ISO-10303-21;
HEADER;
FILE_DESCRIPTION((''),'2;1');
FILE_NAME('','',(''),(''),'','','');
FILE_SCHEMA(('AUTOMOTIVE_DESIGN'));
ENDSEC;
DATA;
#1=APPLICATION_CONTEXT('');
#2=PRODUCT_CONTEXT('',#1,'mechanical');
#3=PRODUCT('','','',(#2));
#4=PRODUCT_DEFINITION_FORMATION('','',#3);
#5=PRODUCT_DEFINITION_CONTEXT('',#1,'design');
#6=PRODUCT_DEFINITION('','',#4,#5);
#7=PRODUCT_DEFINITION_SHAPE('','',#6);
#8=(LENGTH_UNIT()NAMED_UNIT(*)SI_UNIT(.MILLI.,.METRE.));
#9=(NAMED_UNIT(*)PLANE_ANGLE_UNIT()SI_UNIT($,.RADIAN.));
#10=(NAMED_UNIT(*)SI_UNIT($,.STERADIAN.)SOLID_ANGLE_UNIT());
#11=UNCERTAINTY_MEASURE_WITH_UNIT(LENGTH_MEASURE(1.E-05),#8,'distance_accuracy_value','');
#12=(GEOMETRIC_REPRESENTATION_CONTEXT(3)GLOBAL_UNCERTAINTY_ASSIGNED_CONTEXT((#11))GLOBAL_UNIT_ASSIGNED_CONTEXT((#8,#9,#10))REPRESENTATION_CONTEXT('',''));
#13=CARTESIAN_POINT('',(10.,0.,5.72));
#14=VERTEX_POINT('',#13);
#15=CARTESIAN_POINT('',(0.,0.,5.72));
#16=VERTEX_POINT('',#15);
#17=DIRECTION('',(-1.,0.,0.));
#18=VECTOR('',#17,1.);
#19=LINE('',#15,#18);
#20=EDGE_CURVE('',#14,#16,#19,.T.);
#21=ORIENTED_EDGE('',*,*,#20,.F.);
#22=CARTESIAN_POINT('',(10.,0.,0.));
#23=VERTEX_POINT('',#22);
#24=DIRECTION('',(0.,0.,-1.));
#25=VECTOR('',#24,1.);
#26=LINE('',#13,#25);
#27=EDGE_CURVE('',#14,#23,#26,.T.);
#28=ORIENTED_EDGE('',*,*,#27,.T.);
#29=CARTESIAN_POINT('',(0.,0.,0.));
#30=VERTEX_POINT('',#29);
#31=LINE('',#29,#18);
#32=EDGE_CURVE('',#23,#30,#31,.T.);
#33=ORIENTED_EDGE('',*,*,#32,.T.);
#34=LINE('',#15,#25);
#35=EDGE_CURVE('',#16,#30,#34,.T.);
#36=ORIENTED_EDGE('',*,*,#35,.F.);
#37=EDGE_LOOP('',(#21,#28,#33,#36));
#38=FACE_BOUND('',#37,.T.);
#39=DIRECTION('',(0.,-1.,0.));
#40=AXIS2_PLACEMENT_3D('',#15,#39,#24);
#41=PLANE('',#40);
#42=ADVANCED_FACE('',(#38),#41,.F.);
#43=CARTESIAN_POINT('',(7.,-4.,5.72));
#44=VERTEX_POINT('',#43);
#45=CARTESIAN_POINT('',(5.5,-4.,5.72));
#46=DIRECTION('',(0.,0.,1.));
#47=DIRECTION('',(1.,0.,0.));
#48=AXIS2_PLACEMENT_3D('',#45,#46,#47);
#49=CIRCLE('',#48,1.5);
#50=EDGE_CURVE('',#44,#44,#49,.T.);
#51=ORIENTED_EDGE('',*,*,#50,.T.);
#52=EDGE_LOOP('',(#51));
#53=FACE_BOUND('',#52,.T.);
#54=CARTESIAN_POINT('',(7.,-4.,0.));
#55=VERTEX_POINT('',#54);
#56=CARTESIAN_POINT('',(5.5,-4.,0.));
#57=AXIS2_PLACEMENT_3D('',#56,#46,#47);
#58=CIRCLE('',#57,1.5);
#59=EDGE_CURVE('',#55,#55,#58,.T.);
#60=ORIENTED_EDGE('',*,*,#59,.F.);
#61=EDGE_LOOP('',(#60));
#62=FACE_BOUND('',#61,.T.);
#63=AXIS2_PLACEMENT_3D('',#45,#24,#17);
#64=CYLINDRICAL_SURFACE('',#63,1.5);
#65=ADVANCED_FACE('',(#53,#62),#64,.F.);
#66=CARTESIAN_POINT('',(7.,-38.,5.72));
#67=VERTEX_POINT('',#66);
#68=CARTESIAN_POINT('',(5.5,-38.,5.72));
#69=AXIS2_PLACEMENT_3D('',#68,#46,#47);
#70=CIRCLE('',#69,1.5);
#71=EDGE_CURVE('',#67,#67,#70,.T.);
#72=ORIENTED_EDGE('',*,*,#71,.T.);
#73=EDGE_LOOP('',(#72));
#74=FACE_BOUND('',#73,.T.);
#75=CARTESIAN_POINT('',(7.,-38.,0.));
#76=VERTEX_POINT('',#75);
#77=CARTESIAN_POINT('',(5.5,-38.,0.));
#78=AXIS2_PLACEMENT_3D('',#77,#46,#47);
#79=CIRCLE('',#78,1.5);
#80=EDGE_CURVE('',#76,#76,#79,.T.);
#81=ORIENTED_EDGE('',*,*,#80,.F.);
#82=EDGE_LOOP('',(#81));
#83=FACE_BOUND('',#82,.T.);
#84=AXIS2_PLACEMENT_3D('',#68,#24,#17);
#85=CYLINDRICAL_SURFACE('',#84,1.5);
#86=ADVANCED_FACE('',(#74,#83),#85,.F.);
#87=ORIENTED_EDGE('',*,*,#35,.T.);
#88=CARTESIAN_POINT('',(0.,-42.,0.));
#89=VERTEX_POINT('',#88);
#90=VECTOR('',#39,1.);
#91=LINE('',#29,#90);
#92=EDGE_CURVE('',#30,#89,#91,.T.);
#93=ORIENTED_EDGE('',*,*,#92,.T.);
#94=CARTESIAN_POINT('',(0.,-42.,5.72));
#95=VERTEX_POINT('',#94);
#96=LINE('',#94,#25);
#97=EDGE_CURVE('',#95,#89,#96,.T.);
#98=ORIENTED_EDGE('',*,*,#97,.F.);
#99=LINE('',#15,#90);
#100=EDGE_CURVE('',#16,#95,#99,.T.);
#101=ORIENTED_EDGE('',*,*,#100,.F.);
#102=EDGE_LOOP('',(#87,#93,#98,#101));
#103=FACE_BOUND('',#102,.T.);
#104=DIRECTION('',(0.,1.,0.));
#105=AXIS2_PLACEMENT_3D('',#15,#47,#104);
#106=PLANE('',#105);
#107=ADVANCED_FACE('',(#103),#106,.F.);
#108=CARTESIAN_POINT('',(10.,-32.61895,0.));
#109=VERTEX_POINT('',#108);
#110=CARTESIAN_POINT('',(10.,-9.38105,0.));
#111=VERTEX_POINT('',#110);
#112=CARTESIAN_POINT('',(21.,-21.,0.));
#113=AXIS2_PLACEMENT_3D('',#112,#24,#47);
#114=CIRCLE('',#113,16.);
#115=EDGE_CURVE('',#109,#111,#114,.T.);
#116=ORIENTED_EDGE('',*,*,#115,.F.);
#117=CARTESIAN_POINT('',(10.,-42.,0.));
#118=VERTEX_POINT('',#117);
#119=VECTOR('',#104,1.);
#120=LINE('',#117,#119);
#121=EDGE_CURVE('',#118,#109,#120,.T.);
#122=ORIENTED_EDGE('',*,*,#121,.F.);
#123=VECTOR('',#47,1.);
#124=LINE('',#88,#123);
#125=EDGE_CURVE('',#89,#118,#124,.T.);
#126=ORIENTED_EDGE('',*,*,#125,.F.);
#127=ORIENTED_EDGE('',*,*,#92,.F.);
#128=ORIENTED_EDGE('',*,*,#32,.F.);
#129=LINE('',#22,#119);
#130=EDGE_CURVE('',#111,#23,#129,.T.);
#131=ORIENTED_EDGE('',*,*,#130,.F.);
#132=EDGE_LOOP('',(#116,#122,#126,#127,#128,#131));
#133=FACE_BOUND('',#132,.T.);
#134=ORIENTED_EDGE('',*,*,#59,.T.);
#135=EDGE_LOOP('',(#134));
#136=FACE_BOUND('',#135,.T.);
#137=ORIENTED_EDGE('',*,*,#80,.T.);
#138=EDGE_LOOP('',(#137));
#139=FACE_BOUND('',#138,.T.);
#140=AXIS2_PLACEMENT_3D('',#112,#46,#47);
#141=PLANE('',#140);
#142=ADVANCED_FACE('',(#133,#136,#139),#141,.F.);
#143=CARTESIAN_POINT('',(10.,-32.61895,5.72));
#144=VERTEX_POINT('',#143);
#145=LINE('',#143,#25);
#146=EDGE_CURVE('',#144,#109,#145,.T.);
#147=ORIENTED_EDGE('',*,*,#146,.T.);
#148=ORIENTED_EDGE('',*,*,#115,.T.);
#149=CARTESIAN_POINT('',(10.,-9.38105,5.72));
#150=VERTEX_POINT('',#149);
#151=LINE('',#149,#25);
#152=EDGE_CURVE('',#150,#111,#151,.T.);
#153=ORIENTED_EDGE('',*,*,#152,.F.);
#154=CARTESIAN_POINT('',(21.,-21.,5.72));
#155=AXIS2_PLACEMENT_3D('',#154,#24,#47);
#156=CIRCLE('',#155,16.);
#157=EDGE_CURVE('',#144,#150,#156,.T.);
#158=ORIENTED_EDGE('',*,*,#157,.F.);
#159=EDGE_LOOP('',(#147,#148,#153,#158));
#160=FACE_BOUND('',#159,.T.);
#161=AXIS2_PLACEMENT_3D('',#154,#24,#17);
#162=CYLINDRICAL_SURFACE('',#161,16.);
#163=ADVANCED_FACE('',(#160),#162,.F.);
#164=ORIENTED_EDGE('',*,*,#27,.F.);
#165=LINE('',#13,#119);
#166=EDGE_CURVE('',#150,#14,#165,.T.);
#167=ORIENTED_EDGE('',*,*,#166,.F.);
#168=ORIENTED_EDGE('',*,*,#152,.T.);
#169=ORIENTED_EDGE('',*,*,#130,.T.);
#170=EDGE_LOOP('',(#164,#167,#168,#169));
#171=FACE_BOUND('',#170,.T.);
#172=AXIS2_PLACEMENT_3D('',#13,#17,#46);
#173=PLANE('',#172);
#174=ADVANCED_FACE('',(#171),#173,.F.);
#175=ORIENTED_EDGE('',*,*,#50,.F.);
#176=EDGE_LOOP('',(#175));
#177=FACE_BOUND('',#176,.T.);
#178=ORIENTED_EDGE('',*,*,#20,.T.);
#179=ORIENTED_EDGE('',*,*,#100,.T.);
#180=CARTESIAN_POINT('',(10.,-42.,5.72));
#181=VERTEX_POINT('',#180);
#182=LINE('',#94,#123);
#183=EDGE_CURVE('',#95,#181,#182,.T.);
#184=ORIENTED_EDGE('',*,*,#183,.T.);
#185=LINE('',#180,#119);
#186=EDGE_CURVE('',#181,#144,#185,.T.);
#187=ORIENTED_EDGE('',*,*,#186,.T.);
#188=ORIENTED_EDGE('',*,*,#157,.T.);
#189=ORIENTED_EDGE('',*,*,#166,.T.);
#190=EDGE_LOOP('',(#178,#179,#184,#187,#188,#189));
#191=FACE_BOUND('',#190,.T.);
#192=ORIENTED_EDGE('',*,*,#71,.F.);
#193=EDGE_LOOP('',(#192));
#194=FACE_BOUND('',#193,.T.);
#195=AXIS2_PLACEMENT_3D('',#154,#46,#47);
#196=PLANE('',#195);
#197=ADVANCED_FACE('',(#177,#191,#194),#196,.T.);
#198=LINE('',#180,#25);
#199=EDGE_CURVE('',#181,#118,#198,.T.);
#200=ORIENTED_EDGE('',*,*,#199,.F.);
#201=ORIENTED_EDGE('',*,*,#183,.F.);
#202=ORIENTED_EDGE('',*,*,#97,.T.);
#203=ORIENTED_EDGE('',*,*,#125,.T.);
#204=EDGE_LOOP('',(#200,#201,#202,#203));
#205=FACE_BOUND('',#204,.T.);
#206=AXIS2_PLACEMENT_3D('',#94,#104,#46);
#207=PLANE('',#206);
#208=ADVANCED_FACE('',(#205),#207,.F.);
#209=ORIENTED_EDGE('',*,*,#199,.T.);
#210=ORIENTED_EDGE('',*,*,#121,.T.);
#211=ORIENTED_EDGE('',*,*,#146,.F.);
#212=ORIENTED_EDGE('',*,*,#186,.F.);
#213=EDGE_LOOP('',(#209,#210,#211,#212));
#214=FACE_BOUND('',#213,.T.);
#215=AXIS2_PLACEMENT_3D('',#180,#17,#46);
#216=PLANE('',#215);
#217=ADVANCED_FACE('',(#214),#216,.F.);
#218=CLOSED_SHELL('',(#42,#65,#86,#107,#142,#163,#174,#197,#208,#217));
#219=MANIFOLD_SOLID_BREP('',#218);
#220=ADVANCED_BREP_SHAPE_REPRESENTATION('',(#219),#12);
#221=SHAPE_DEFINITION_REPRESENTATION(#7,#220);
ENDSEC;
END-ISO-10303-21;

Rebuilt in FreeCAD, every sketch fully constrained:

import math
import FreeCAD as App
import Part
import Sketcher
Q = App.Units.Quantity

doc = App.newDocument("Part")
params = doc.addObject("Spreadsheet::Sheet", "Params")
for row, (alias, value) in enumerate([
    ("sketch1_diameter", "3 mm"),
    ("sketch1_radius", "16 mm"),
    ("sketch1_width", "10 mm"),
    ("sketch1_height", "42 mm"),
    ("pad1_length", "5.72 mm"),
], start=1):
    params.set(f"A{row}", alias)
    params.set(f"B{row}", "=" + value)
    params.setAlias(f"B{row}", alias)

body = doc.addObject("PartDesign::Body", "Body")

# Sketch on XY plane
sketch1 = doc.addObject("Sketcher::SketchObject", "Sketch")
body.addObject(sketch1)
sketch1.AttachmentSupport = (doc.XY_Plane, [""])
sketch1.MapMode = "FlatFace"
sketch1.addGeometry([
    Part.LineSegment(App.Vector(10, 0, 0), App.Vector(0, 0, 0)),  # 0
    Part.LineSegment(App.Vector(0, 0, 0), App.Vector(0, -42, 0)),  # 1
    Part.LineSegment(App.Vector(0, -42, 0), App.Vector(10, -42, 0)),  # 2
    Part.LineSegment(App.Vector(10, -42, 0), App.Vector(10, -32.61895, 0)),  # 3
    Part.ArcOfCircle(Part.Circle(App.Vector(21, -21, 0), App.Vector(0, 0, 1), 16), math.radians(133.432537), math.radians(226.567463)),  # 4
    Part.LineSegment(App.Vector(10, -9.38105, 0), App.Vector(10, 0, 0)),  # 5
    Part.Circle(App.Vector(5.5, -38, 0), App.Vector(0, 0, 1), 1.5),  # 6
    Part.Circle(App.Vector(5.5, -4, 0), App.Vector(0, 0, 1), 1.5),  # 7
], False)
sketch1.addConstraint([
    Sketcher.Constraint("Coincident", 0, 2, 1, 1),
    Sketcher.Constraint("Coincident", 1, 2, 2, 1),
    Sketcher.Constraint("Coincident", 2, 2, 3, 1),
    Sketcher.Constraint("Coincident", 3, 2, 4, 2),
    Sketcher.Constraint("Coincident", 4, 1, 5, 1),
    Sketcher.Constraint("Coincident", 5, 2, 0, 1),
    Sketcher.Constraint("Horizontal", 0),
    Sketcher.Constraint("Vertical", 1),
    Sketcher.Constraint("Horizontal", 2),
    Sketcher.Constraint("Vertical", 3),
    Sketcher.Constraint("Vertical", 5),
    Sketcher.Constraint("Coincident", 0, 2, -1, 1),
    Sketcher.Constraint("Equal", 6, 7),
    Sketcher.Constraint("Vertical", 6, 3, 7, 3),
    Sketcher.Constraint("Vertical", 3, 2, 4, 1),
    Sketcher.Constraint("Equal", 3, 5),
    Sketcher.Constraint("Diameter", 6, Q("3 mm")),
    Sketcher.Constraint("Radius", 4, Q("16 mm")),
    Sketcher.Constraint("DistanceX", 0, 2, 0, 1, Q("10 mm")),
    Sketcher.Constraint("DistanceY", 1, 2, 1, 1, Q("42 mm")),
    Sketcher.Constraint("DistanceX", -1, 1, 4, 3, Q("21 mm")),
    Sketcher.Constraint("DistanceY", 6, 3, -1, 1, Q("38 mm")),
    Sketcher.Constraint("DistanceY", 7, 3, -1, 1, Q("4 mm")),
    Sketcher.Constraint("DistanceX", -1, 1, 6, 3, Q("5.5 mm")),
])
sketch1.setExpression("Constraints[16]", "Params.sketch1_diameter")
sketch1.setExpression("Constraints[17]", "Params.sketch1_radius")
sketch1.setExpression("Constraints[18]", "Params.sketch1_width")
sketch1.setExpression("Constraints[19]", "Params.sketch1_height")
pad1 = doc.addObject("PartDesign::Pad", "Pad")
body.addObject(pad1)
pad1.Profile = sketch1
pad1.setExpression("Length", "Params.pad1_length")

doc.recompute()
